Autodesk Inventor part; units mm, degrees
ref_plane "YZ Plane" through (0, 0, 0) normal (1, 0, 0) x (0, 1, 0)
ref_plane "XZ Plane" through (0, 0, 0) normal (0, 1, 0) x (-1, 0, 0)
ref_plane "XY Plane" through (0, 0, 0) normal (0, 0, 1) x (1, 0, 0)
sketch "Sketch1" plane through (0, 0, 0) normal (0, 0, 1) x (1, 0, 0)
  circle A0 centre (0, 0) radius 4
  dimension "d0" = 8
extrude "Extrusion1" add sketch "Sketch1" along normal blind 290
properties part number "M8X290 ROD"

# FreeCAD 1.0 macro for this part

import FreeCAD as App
import Part
import Sketcher

V = App.Vector
Q = App.Units.Quantity

doc = App.newDocument("Part")
params = doc.addObject("Spreadsheet::Sheet", "Params")
for row, (alias, value) in enumerate([
    ("sketch1_diameter", "8 mm"),
    ("pad1_length", "290 mm"),
], start=1):
    params.set(f"A{row}", alias)
    params.set(f"B{row}", "=" + value)
    params.setAlias(f"B{row}", alias)

body = doc.addObject("PartDesign::Body", "Body")

sketch1 = body.newObject("Sketcher::SketchObject", "Sketch")
sketch1.AttachmentSupport = (doc.getObject("XY_Plane"), [""])
sketch1.MapMode = "FlatFace"
sketch1.addGeometry(Part.Circle(V(0, 0, 0), V(0, 0, 1), 4), False)
sketch1.addConstraint([
    Sketcher.Constraint("Coincident", 0, 3, -1, 1),
    Sketcher.Constraint("Diameter", 0, Q("8 mm")),
])
sketch1.setExpression("Constraints[1]", "Params.sketch1_diameter")
pad1 = body.newObject("PartDesign::Pad", "Pad")
pad1.Profile = sketch1
pad1.setExpression("Length", "Params.pad1_length")

doc.recompute()
